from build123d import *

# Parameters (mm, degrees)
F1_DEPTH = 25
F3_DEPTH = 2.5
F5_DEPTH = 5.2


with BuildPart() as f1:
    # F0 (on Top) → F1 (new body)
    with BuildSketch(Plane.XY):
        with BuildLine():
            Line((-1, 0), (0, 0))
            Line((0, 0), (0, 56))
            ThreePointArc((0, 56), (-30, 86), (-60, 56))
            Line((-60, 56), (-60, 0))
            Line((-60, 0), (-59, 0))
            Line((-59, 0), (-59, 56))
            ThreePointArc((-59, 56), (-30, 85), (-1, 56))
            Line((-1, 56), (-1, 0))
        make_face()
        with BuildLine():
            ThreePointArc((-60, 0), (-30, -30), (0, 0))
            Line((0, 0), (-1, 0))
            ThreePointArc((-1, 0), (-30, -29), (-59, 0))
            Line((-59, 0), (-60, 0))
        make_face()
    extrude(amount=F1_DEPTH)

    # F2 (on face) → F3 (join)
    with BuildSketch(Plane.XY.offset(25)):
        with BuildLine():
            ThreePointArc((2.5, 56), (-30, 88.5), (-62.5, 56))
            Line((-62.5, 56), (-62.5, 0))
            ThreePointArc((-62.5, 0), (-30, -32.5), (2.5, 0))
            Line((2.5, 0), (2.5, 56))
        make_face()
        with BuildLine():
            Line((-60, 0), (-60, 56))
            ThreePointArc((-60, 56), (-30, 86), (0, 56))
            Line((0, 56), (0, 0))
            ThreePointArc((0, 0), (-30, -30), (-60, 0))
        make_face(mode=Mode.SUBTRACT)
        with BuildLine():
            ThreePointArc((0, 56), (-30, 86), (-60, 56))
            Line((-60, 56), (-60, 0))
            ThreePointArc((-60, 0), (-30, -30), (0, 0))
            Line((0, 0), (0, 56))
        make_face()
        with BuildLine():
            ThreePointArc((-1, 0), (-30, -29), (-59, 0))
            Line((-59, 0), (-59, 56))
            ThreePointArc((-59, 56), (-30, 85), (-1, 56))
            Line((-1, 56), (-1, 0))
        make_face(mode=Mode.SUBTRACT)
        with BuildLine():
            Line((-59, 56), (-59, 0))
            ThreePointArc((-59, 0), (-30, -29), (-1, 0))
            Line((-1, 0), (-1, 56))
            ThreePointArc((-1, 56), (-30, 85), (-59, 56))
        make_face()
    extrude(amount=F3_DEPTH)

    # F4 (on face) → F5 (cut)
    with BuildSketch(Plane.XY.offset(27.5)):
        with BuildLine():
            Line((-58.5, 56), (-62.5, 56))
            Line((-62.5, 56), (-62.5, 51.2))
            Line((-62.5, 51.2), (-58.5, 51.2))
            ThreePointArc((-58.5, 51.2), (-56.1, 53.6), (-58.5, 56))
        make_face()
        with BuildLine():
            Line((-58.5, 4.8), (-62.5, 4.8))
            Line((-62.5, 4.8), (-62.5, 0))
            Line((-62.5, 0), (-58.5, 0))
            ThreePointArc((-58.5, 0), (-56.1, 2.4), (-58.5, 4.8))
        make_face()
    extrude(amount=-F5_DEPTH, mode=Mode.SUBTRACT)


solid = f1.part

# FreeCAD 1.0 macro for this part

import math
import FreeCAD as App
import Part
import Sketcher

V = App.Vector
Q = App.Units.Quantity

doc = App.newDocument("Part")
body = doc.addObject("PartDesign::Body", "Body")

# Sketch on XY plane
sketch1 = body.newObject("Sketcher::SketchObject", "Sketch")
sketch1.AttachmentSupport = (doc.getObject("XY_Plane"), [""])
sketch1.MapMode = "FlatFace"
sketch1.addGeometry(Part.LineSegment(V(0, 0, 0), V(0, 56, 0)), False)
sketch1.addGeometry(Part.ArcOfCircle(Part.Circle(V(-30, 56, 0), V(0, 0, 1), 30), math.radians(0), math.radians(180)), False)
sketch1.addGeometry(Part.LineSegment(V(-60, 56, 0), V(-60, 0, 0)), False)
sketch1.addGeometry(Part.ArcOfCircle(Part.Circle(V(-30, 0, 0), V(0, 0, 1), 30), math.radians(180), math.radians(360)), False)
sketch1.addGeometry(Part.LineSegment(V(-59, 0, 0), V(-59, 56, 0)), False)
sketch1.addGeometry(Part.ArcOfCircle(Part.Circle(V(-30, 56, 0), V(0, 0, 1), 29), math.radians(0), math.radians(180)), False)
sketch1.addGeometry(Part.LineSegment(V(-1, 56, 0), V(-1, 0, 0)), False)
sketch1.addGeometry(Part.ArcOfCircle(Part.Circle(V(-30, 0, 0), V(0, 0, 1), 29), math.radians(180), math.radians(360)), False)
sketch1.addConstraint(Sketcher.Constraint("Tangent", 0, 2, 1, 1))
sketch1.addConstraint(Sketcher.Constraint("Tangent", 1, 2, 2, 1))
sketch1.addConstraint(Sketcher.Constraint("Tangent", 2, 2, 3, 1))
sketch1.addConstraint(Sketcher.Constraint("Tangent", 3, 2, 0, 1))
sketch1.addConstraint(Sketcher.Constraint("Tangent", 4, 2, 5, 2))
sketch1.addConstraint(Sketcher.Constraint("Tangent", 5, 1, 6, 1))
sketch1.addConstraint(Sketcher.Constraint("Tangent", 6, 2, 7, 2))
sketch1.addConstraint(Sketcher.Constraint("Tangent", 7, 1, 4, 1))
sketch1.addConstraint(Sketcher.Constraint("Vertical", 0))
sketch1.addConstraint(Sketcher.Constraint("Vertical", 2))
sketch1.addConstraint(Sketcher.Constraint("Vertical", 4))
sketch1.addConstraint(Sketcher.Constraint("Vertical", 6))
sketch1.addConstraint(Sketcher.Constraint("Coincident", 3, 2, -1, 1))
sketch1.addConstraint(Sketcher.Constraint("Coincident", 5, 3, 1, 3))
sketch1.addConstraint(Sketcher.Constraint("PointOnObject", 7, 3, -1))
sketch1.addConstraint(Sketcher.Constraint("Radius", 1, Q("30 mm")))
sketch1.addConstraint(Sketcher.Constraint("Radius", 5, Q("29 mm")))
sketch1.addConstraint(Sketcher.Constraint("DistanceY", 0, 1, 0, 2, Q("56 mm")))
pad1 = body.newObject("PartDesign::Pad", "Pad")
pad1.Profile = sketch1
pad1.Length = 25

# Sketch on XY plane
sketch2 = body.newObject("Sketcher::SketchObject", "Sketch001")
sketch2.AttachmentSupport = (doc.getObject("XY_Plane"), [""])
sketch2.MapMode = "FlatFace"
sketch2.AttachmentOffset = App.Placement(V(0, 0, 25), App.Rotation())
sketch2.addGeometry(Part.ArcOfCircle(Part.Circle(V(-30, 56, 0), V(0, 0, 1), 32), math.radians(0), math.radians(180)), False)
sketch2.addGeometry(Part.LineSegment(V(-62, 56, 0), V(-62, 0, 0)), False)
sketch2.addGeometry(Part.ArcOfCircle(Part.Circle(V(-30, 0, 0), V(0, 0, 1), 32), math.radians(180), math.radians(360)), False)
sketch2.addGeometry(Part.LineSegment(V(2, 0, 0), V(2, 56, 0)), False)
sketch2.addConstraint(Sketcher.Constraint("Tangent", 0, 2, 1, 1))
sketch2.addConstraint(Sketcher.Constraint("Tangent", 1, 2, 2, 1))
sketch2.addConstraint(Sketcher.Constraint("Tangent", 2, 2, 3, 1))
sketch2.addConstraint(Sketcher.Constraint("Tangent", 3, 2, 0, 1))
sketch2.addConstraint(Sketcher.Constraint("Vertical", 1))
sketch2.addConstraint(Sketcher.Constraint("Vertical", 3))
sketch2.addConstraint(Sketcher.Constraint("PointOnObject", 2, 3, -1))
sketch2.addConstraint(Sketcher.Constraint("Radius", 0, Q("32.5 mm")))
sketch2.addConstraint(Sketcher.Constraint("DistanceY", 1, 2, 1, 1, Q("56 mm")))
sketch2.addConstraint(Sketcher.Constraint("DistanceX", 0, 3, -1, 1, Q("30 mm")))
pad2 = body.newObject("PartDesign::Pad", "Pad001")
pad2.Profile = sketch2
pad2.Length = 2.5

# Sketch on XY plane
sketch3 = body.newObject("Sketcher::SketchObject", "Sketch002")
sketch3.AttachmentSupport = (doc.getObject("XY_Plane"), [""])
sketch3.MapMode = "FlatFace"
sketch3.AttachmentOffset = App.Placement(V(0, 0, 27.5), App.Rotation())
sketch3.addGeometry(Part.LineSegment(V(-58.5, 56, 0), V(-62.5, 56, 0)), False)
sketch3.addGeometry(Part.LineSegment(V(-62.5, 56, 0), V(-62.5, 51.2, 0)), False)
sketch3.addGeometry(Part.LineSegment(V(-62.5, 51.2, 0), V(-58.5, 51.2, 0)), False)
sketch3.addGeometry(Part.ArcOfCircle(Part.Circle(V(-58.5, 53.6, 0), V(0, 0, 1), 2.4), math.radians(-90), math.radians(90)), False)
sketch3.addGeometry(Part.LineSegment(V(-58.5, 4.8, 0), V(-62.5, 4.8, 0)), False)
sketch3.addGeometry(Part.LineSegment(V(-62.5, 4.8, 0), V(-62.5, 0, 0)), False)
sketch3.addGeometry(Part.LineSegment(V(-62.5, 0, 0), V(-58.5, 0, 0)), False)
sketch3.addGeometry(Part.ArcOfCircle(Part.Circle(V(-58.5, 2.4, 0), V(0, 0, 1), 2.4), math.radians(-90), math.radians(90)), False)
sketch3.addConstraint(Sketcher.Constraint("Coincident", 0, 2, 1, 1))
sketch3.addConstraint(Sketcher.Constraint("Coincident", 1, 2, 2, 1))
sketch3.addConstraint(Sketcher.Constraint("Tangent", 2, 2, 3, 1))
sketch3.addConstraint(Sketcher.Constraint("Tangent", 3, 2, 0, 1))
sketch3.addConstraint(Sketcher.Constraint("Coincident", 4, 2, 5, 1))
sketch3.addConstraint(Sketcher.Constraint("Coincident", 5, 2, 6, 1))
sketch3.addConstraint(Sketcher.Constraint("Tangent", 6, 2, 7, 1))
sketch3.addConstraint(Sketcher.Constraint("Tangent", 7, 2, 4, 1))
sketch3.addConstraint(Sketcher.Constraint("Horizontal", 0))
sketch3.addConstraint(Sketcher.Constraint("Vertical", 1))
sketch3.addConstraint(Sketcher.Constraint("Horizontal", 2))
sketch3.addConstraint(Sketcher.Constraint("Horizontal", 4))
sketch3.addConstraint(Sketcher.Constraint("Vertical", 5))
sketch3.addConstraint(Sketcher.Constraint("Horizontal", 6))
sketch3.addConstraint(Sketcher.Constraint("Equal", 3, 7))
sketch3.addConstraint(Sketcher.Constraint("PointOnObject", 5, 2, -1))
sketch3.addConstraint(Sketcher.Constraint("Vertical", 3, 3, 7, 3))
sketch3.addConstraint(Sketcher.Constraint("Vertical", 1, 2, 4, 2))
sketch3.addConstraint(Sketcher.Constraint("Radius", 3, Q("2.4 mm")))
sketch3.addConstraint(Sketcher.Constraint("DistanceX", 0, 2, 0, 1, Q("4 mm")))
sketch3.addConstraint(Sketcher.Constraint("DistanceY", -1, 1, 0, 2, Q("56 mm")))
sketch3.addConstraint(Sketcher.Constraint("DistanceX", 3, 3, -1, 1, Q("58.5 mm")))
pocket1 = body.newObject("PartDesign::Pocket", "Pocket")
pocket1.Profile = sketch3
pocket1.Length = 5.2

doc.recompute()
